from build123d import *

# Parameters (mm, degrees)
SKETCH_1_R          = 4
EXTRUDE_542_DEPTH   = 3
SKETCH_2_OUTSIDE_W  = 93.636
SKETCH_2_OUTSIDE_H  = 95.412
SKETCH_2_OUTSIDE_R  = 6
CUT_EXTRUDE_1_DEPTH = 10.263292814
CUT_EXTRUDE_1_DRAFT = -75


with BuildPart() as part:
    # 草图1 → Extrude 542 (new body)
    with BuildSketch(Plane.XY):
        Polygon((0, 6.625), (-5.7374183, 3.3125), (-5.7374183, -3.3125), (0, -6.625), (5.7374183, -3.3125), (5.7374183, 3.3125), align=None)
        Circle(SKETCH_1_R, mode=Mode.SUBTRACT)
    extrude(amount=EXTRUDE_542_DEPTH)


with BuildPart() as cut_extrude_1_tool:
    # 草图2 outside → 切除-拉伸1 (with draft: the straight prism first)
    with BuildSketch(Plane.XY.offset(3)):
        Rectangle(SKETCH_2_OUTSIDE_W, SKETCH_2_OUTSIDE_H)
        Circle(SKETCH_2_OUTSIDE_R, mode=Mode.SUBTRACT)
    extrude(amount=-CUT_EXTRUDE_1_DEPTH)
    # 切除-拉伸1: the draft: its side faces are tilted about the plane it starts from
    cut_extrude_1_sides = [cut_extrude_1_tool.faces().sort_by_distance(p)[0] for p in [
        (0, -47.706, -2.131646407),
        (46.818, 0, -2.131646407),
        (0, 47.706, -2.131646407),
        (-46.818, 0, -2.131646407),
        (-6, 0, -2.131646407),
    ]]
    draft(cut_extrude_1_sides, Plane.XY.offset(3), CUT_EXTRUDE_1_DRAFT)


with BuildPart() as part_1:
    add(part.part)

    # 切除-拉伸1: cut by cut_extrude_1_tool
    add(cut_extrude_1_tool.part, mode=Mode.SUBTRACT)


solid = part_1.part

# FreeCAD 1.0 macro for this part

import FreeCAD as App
import Part
import Sketcher
from FreeCAD import Vector
Q = App.Units.Quantity


def faces_at(feature, points):
    """Names of the faces that lie closest to the given points."""
    faces = feature.Shape.Faces
    near = lambda p: min(range(len(faces)), key=lambda i: faces[i].distToShape(Part.Vertex(*p))[0])
    return sorted({f"Face{near(p) + 1}" for p in points})

doc = App.newDocument("Part")
body = doc.addObject("PartDesign::Body", "Body")

sketch1 = body.newObject("Sketcher::SketchObject", "Sketch")
sketch1.AttachmentSupport = (doc.getObject("XY_Plane"), [""])
sketch1.MapMode = "FlatFace"
sketch1.addGeometry(Part.LineSegment(Vector(0, 6.625, 0), Vector(-5.737418, 3.3125, 0)), False)
sketch1.addGeometry(Part.LineSegment(Vector(-5.737418, 3.3125, 0), Vector(-5.737418, -3.3125, 0)), False)
sketch1.addGeometry(Part.LineSegment(Vector(-5.737418, -3.3125, 0), Vector(0, -6.625, 0)), False)
sketch1.addGeometry(Part.LineSegment(Vector(0, -6.625, 0), Vector(5.737418, -3.3125, 0)), False)
sketch1.addGeometry(Part.LineSegment(Vector(5.737418, -3.3125, 0), Vector(5.737418, 3.3125, 0)), False)
sketch1.addGeometry(Part.LineSegment(Vector(5.737418, 3.3125, 0), Vector(0, 6.625, 0)), False)
sketch1.addGeometry(Part.Circle(Vector(0, 0, 0), Vector(0, 0, 1), 4), False)
sketch1.addConstraint(Sketcher.Constraint("Coincident", 0, 2, 1, 1))
sketch1.addConstraint(Sketcher.Constraint("Coincident", 1, 2, 2, 1))
sketch1.addConstraint(Sketcher.Constraint("Coincident", 2, 2, 3, 1))
sketch1.addConstraint(Sketcher.Constraint("Coincident", 3, 2, 4, 1))
sketch1.addConstraint(Sketcher.Constraint("Coincident", 4, 2, 5, 1))
sketch1.addConstraint(Sketcher.Constraint("Coincident", 5, 2, 0, 1))
sketch1.addConstraint(Sketcher.Constraint("Vertical", 1))
sketch1.addConstraint(Sketcher.Constraint("Vertical", 4))
sketch1.addConstraint(Sketcher.Constraint("Coincident", 6, 3, -1, 1))
sketch1.addConstraint(Sketcher.Constraint("Symmetric", 0, 2, 3, 2, -1, 1))
sketch1.addConstraint(Sketcher.Constraint("Symmetric", 2, 2, 5, 2, -1, 1))
sketch1.addConstraint(Sketcher.Constraint("PointOnObject", 2, 2, -2))
sketch1.addConstraint(Sketcher.Constraint("Parallel", 2, 5))
sketch1.addConstraint(Sketcher.Constraint("Horizontal", 1, 2, 3, 2))
sketch1.addConstraint(Sketcher.Constraint("Diameter", 6, 8.0))
sketch1.addConstraint(Sketcher.Constraint("Angle", 0, Q("-150 deg")))
sketch1.addConstraint(Sketcher.Constraint("DistanceY", 1, 2, 1, 1, 6.625))
sketch1.addConstraint(Sketcher.Constraint("Distance", 0, 6.625))
pad1 = body.newObject("PartDesign::Pad", "Pad")
pad1.Profile = sketch1
pad1.Length = 3
body2 = doc.addObject("PartDesign::Body", "Body001")

sketch2 = body2.newObject("Sketcher::SketchObject", "Sketch001")
sketch2.AttachmentSupport = (doc.getObject("XY_Plane001"), [""])
sketch2.MapMode = "FlatFace"
sketch2.AttachmentOffset = App.Placement(Vector(0, 0, 3), App.Rotation())
sketch2.addGeometry(Part.LineSegment(Vector(-46.818, 47.706, 0), Vector(-46.818, -47.706, 0)), False)
sketch2.addGeometry(Part.LineSegment(Vector(-46.818, -47.706, 0), Vector(46.818, -47.706, 0)), False)
sketch2.addGeometry(Part.LineSegment(Vector(46.818, -47.706, 0), Vector(46.818, 47.706, 0)), False)
sketch2.addGeometry(Part.LineSegment(Vector(46.818, 47.706, 0), Vector(-46.818, 47.706, 0)), False)
sketch2.addGeometry(Part.Circle(Vector(0, 0, 0), Vector(0, 0, 1), 6), False)
sketch2.addConstraint(Sketcher.Constraint("Coincident", 0, 2, 1, 1))
sketch2.addConstraint(Sketcher.Constraint("Coincident", 1, 2, 2, 1))
sketch2.addConstraint(Sketcher.Constraint("Coincident", 2, 2, 3, 1))
sketch2.addConstraint(Sketcher.Constraint("Coincident", 3, 2, 0, 1))
sketch2.addConstraint(Sketcher.Constraint("Vertical", 0))
sketch2.addConstraint(Sketcher.Constraint("Horizontal", 1))
sketch2.addConstraint(Sketcher.Constraint("Vertical", 2))
sketch2.addConstraint(Sketcher.Constraint("Horizontal", 3))
sketch2.addConstraint(Sketcher.Constraint("Coincident", 4, 3, -1, 1))
sketch2.addConstraint(Sketcher.Constraint("Symmetric", 0, 2, 2, 2, -1, 1))
sketch2.addConstraint(Sketcher.Constraint("Diameter", 4, 12.0))
sketch2.addConstraint(Sketcher.Constraint("DistanceX", 1, 1, 1, 2, 93.636))
sketch2.addConstraint(Sketcher.Constraint("DistanceY", 0, 2, 0, 1, 95.412))
pad2 = body2.newObject("PartDesign::Pad", "Pad001")
pad2.Profile = sketch2
pad2.Length = 10.263293
pad2.Reversed = True
doc.recompute()

datumplane = body2.newObject("PartDesign::Plane", "DatumPlane")
datumplane.AttachmentSupport = (doc.getObject("XY_Plane001"), [""])
datumplane.MapMode = "FlatFace"
datumplane.AttachmentOffset = App.Placement(Vector(0, 0, 3), App.Rotation())
draft = body2.newObject("PartDesign::Draft", "Draft")
draft.Base = (pad2, faces_at(pad2, [
    (0, -47.706, -2.132),
    (46.818, 0, -2.132),
    (0, 47.706, -2.132),
    (-46.818, 0, -2.132),
    (-6, 0, -2.132),
]))
draft.NeutralPlane = (datumplane, [""])
draft.Angle = 75
draft.Reversed = True
doc.recompute()

boolean = body.newObject("PartDesign::Boolean", "Boolean")
boolean.Type = "Cut"
boolean.addObjects([body2])

doc.recompute()
